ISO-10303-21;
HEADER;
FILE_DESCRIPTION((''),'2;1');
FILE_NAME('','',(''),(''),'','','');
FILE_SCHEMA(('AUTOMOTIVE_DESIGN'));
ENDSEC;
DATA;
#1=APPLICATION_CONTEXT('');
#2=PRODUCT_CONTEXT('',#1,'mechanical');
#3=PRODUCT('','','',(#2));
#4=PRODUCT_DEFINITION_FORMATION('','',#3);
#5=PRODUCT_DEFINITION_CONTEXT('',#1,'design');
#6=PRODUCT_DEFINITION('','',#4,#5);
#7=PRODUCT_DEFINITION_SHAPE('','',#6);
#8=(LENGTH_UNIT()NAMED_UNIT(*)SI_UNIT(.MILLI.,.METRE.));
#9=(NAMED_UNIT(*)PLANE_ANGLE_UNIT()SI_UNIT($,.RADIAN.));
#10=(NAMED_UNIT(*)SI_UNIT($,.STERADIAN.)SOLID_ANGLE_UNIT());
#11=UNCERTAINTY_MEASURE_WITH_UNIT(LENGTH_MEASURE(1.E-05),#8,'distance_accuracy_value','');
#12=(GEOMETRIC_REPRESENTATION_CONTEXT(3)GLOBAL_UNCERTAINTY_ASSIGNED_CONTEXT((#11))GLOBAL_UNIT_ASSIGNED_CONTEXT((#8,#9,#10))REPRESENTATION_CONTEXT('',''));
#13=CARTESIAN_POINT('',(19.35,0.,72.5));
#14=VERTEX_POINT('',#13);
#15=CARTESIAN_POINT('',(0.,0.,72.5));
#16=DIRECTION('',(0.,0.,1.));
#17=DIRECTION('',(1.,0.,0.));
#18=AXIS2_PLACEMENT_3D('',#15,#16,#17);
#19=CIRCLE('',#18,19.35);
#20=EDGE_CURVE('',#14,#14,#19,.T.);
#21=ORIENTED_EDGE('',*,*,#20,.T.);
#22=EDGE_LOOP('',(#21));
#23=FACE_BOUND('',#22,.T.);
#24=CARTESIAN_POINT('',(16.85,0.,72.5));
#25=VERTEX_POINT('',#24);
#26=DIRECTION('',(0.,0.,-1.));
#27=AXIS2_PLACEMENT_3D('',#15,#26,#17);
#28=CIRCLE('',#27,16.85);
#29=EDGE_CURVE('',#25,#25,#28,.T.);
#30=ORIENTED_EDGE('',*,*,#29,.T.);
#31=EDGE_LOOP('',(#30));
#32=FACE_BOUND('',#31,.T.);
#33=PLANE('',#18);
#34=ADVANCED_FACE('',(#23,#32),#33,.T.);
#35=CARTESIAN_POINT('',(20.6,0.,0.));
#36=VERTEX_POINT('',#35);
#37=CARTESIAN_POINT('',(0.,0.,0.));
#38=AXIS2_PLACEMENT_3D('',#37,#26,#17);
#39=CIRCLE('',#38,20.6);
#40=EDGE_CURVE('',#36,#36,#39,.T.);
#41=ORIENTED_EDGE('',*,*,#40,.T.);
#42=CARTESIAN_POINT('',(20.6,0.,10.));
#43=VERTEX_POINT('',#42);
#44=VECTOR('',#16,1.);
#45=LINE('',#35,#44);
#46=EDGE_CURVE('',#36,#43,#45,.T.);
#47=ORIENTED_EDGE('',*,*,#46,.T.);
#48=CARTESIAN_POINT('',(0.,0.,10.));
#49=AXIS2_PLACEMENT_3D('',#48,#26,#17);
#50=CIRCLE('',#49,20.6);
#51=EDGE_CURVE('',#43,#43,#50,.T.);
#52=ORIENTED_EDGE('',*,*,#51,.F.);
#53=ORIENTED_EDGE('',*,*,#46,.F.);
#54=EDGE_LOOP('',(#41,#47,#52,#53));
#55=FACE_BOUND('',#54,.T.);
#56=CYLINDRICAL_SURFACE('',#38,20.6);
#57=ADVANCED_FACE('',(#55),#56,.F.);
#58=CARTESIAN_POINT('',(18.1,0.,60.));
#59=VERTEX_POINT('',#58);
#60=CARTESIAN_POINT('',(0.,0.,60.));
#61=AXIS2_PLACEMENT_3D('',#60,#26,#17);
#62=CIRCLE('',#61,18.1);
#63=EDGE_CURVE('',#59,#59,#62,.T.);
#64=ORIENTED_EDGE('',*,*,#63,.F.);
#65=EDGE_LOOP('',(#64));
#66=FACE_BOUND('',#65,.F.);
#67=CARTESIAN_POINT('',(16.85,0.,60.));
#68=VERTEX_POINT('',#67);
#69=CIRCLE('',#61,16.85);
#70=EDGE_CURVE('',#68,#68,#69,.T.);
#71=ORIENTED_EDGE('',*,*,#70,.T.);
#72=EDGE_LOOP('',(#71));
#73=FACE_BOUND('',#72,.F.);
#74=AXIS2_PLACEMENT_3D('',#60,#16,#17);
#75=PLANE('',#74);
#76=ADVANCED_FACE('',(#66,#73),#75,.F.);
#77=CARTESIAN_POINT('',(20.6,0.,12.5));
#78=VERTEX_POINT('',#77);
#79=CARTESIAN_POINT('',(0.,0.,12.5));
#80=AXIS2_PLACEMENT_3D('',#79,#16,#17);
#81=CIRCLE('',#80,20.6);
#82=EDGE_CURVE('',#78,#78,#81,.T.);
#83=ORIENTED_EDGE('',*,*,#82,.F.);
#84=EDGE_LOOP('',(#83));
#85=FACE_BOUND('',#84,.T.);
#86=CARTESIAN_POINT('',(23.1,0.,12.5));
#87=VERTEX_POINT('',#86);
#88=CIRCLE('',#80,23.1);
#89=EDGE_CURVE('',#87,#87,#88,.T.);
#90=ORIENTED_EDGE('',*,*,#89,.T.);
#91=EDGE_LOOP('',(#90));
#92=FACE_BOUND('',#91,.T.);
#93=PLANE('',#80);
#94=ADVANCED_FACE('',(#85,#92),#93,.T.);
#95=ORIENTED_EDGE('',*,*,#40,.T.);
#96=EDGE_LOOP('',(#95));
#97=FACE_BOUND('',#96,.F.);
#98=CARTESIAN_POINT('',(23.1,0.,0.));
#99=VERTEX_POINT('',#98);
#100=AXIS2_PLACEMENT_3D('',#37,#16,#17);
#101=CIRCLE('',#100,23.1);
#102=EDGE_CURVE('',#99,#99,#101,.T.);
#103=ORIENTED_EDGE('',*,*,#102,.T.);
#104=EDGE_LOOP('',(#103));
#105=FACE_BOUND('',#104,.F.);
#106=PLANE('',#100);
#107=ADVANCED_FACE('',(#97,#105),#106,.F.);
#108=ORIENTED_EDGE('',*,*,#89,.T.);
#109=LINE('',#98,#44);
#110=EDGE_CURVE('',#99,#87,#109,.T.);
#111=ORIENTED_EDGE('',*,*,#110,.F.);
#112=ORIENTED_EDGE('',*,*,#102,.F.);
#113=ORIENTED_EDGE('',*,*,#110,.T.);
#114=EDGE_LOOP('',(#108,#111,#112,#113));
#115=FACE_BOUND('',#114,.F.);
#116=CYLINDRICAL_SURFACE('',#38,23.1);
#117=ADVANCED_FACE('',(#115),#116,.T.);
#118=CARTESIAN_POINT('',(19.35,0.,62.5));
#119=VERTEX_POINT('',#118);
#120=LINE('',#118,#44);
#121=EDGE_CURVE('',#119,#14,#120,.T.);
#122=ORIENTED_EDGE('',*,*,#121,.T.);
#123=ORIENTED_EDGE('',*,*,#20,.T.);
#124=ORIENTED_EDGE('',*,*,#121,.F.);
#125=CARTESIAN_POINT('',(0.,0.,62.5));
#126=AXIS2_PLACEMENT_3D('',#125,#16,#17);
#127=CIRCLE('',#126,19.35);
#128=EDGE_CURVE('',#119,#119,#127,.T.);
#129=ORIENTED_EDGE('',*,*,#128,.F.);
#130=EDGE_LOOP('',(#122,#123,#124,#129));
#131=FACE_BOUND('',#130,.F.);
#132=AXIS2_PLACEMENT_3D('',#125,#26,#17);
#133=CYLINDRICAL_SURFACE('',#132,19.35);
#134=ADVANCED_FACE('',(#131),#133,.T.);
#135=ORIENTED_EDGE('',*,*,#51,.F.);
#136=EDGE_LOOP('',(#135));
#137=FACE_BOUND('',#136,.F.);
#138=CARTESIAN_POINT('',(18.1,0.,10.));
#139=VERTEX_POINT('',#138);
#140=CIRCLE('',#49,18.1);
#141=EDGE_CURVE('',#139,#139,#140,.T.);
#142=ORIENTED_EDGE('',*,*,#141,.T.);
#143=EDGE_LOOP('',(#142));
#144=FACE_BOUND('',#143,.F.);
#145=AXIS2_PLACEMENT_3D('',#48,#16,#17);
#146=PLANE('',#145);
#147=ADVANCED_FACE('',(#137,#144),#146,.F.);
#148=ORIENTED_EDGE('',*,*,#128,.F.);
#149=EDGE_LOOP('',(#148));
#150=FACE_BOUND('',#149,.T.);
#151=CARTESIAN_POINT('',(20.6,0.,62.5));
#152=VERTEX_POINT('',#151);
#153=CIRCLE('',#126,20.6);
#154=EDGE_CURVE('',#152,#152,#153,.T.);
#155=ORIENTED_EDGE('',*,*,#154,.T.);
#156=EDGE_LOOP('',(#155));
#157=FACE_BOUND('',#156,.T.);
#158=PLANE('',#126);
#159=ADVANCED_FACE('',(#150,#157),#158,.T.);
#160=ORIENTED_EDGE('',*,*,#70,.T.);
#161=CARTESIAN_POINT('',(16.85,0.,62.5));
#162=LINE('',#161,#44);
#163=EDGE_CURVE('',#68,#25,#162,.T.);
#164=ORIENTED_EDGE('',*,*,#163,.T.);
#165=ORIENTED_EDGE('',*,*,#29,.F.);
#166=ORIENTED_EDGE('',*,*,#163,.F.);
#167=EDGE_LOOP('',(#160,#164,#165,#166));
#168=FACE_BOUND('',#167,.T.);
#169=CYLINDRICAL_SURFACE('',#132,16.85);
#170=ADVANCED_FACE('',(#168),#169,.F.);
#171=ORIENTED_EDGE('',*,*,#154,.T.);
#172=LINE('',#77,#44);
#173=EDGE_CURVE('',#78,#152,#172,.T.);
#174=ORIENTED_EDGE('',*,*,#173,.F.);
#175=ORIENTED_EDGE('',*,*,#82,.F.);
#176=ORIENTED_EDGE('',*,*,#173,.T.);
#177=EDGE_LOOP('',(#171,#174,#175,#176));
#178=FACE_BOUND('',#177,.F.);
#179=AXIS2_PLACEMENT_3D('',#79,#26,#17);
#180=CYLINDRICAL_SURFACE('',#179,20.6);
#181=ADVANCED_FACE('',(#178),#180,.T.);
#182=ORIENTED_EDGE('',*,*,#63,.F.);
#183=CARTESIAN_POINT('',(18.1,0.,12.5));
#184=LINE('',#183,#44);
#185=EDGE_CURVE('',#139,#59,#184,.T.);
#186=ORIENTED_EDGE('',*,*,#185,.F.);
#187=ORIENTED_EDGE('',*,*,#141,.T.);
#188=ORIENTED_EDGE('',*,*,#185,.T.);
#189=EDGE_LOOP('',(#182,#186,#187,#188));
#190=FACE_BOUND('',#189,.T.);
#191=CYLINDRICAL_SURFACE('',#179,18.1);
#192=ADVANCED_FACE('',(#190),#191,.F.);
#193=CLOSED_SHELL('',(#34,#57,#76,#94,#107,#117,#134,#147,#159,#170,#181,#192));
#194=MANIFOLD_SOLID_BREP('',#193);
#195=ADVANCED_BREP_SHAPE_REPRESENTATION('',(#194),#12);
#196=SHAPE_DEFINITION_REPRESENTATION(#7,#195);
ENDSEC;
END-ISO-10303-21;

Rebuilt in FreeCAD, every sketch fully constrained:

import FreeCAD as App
import Part
import Sketcher
Q = App.Units.Quantity


def faces_at(feature, points):
    """Names of the faces that lie closest to the given points."""
    faces = feature.Shape.Faces
    near = lambda p: min(range(len(faces)), key=lambda i: faces[i].distToShape(Part.Vertex(*p))[0])
    return sorted({f"Face{near(p) + 1}" for p in points})

doc = App.newDocument("Part")
body = doc.addObject("PartDesign::Body", "Body")

# Sketch on XY plane
sketch1 = body.newObject("Sketcher::SketchObject", "Sketch")
sketch1.AttachmentSupport = (doc.getObject("XY_Plane"), [""])
sketch1.MapMode = "FlatFace"
sketch1.addGeometry(Part.Circle(App.Vector(0, 0, 0), App.Vector(0, 0, 1), 23), False)
sketch1.addConstraint([
    Sketcher.Constraint("Coincident", 0, 3, -1, 1),
    Sketcher.Constraint("Diameter", 0, Q("46.2 mm")),
])
pad1 = body.newObject("PartDesign::Pad", "Pad")
pad1.Profile = sketch1
pad1.Length = 12.5

# Sketch on XY plane
sketch2 = body.newObject("Sketcher::SketchObject", "Sketch001")
sketch2.AttachmentSupport = (doc.getObject("XY_Plane"), [""])
sketch2.MapMode = "FlatFace"
sketch2.AttachmentOffset = App.Placement(App.Vector(0, 0, 12.5), App.Rotation())
sketch2.addGeometry(Part.Circle(App.Vector(0, 0, 0), App.Vector(0, 0, 1), 21), False)
sketch2.addConstraint([
    Sketcher.Constraint("Coincident", 0, 3, -1, 1),
    Sketcher.Constraint("Diameter", 0, Q("41.2 mm")),
])
pad2 = body.newObject("PartDesign::Pad", "Pad001")
pad2.Profile = sketch2
pad2.Length = 50

# Sketch on XY plane
sketch3 = body.newObject("Sketcher::SketchObject", "Sketch002")
sketch3.AttachmentSupport = (doc.getObject("XY_Plane"), [""])
sketch3.MapMode = "FlatFace"
sketch3.AttachmentOffset = App.Placement(App.Vector(0, 0, 62.5), App.Rotation())
sketch3.addGeometry(Part.Circle(App.Vector(0, 0, 0), App.Vector(0, 0, 1), 19), False)
sketch3.addConstraint([
    Sketcher.Constraint("Coincident", 0, 3, -1, 1),
    Sketcher.Constraint("Diameter", 0, Q("38.7 mm")),
])
pad3 = body.newObject("PartDesign::Pad", "Pad002")
pad3.Profile = sketch3
pad3.Length = 10
doc.recompute()

thickness = body.newObject("PartDesign::Thickness", "Thickness")
thickness.Base = (pad3, faces_at(pad3, [(0, 0, 72.5), (0, 0, 0)]))
thickness.Value = 2.5
thickness.Reversed = True
thickness.Join = "Intersection"

doc.recompute()
